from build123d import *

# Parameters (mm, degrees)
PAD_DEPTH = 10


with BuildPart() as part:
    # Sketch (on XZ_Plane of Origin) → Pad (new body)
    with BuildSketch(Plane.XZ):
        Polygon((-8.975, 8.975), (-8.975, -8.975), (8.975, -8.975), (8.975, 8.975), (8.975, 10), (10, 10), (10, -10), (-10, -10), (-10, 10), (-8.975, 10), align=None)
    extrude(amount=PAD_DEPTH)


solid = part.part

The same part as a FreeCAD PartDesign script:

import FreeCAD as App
import Part
import Sketcher
from FreeCAD import Vector
Q = App.Units.Quantity

doc = App.newDocument("Part")
body = doc.addObject("PartDesign::Body", "Body")

# Sketch on XZ plane
sketch1 = doc.addObject("Sketcher::SketchObject", "Sketch")
body.addObject(sketch1)
sketch1.AttachmentSupport = (doc.XZ_Plane, [""])
sketch1.MapMode = "FlatFace"
sketch1.addGeometry([
    Part.LineSegment(Vector(-8.975, -8.975, 0), Vector(-8.975, 10, 0)),  # 0
    Part.LineSegment(Vector(-8.975, 10, 0), Vector(-10, 10, 0)),  # 1
    Part.LineSegment(Vector(-10, 10, 0), Vector(-10, -10, 0)),  # 2
    Part.LineSegment(Vector(-10, -10, 0), Vector(10, -10, 0)),  # 3
    Part.LineSegment(Vector(10, -10, 0), Vector(10, 10, 0)),  # 4
    Part.LineSegment(Vector(10, 10, 0), Vector(8.975, 10, 0)),  # 5
    Part.LineSegment(Vector(8.975, 10, 0), Vector(8.975, -8.975, 0)),  # 6
    Part.LineSegment(Vector(8.975, -8.975, 0), Vector(-8.975, -8.975, 0)),  # 7
], False)
sketch1.addConstraint([
    Sketcher.Constraint("Coincident", 0, 2, 1, 1),
    Sketcher.Constraint("Coincident", 1, 2, 2, 1),
    Sketcher.Constraint("Coincident", 2, 2, 3, 1),
    Sketcher.Constraint("Coincident", 3, 2, 4, 1),
    Sketcher.Constraint("Coincident", 4, 2, 5, 1),
    Sketcher.Constraint("Coincident", 5, 2, 6, 1),
    Sketcher.Constraint("Coincident", 6, 2, 7, 1),
    Sketcher.Constraint("Coincident", 7, 2, 0, 1),
    Sketcher.Constraint("Vertical", 0),
    Sketcher.Constraint("Horizontal", 1),
    Sketcher.Constraint("Vertical", 2),
    Sketcher.Constraint("Horizontal", 3),
    Sketcher.Constraint("Vertical", 4),
    Sketcher.Constraint("Horizontal", 5),
    Sketcher.Constraint("Vertical", 6),
    Sketcher.Constraint("Horizontal", 7),
    Sketcher.Constraint("Symmetric", 1, 2, 3, 2, -1, 1),
    Sketcher.Constraint("Symmetric", 0, 2, 5, 2, -2),
    Sketcher.Constraint("Equal", 3, 2),
    Sketcher.Constraint("DistanceX", 3, 1, 3, 2, Q("20 mm")),
    Sketcher.Constraint("DistanceX", 7, 2, 7, 1, Q("17.95 mm")),
    Sketcher.Constraint("DistanceY", 0, 1, 0, 2, Q("18.975 mm")),
])
pad1 = doc.addObject("PartDesign::Pad", "Pad")
body.addObject(pad1)
pad1.Profile = sketch1
pad1.Length = 10

doc.recompute()
